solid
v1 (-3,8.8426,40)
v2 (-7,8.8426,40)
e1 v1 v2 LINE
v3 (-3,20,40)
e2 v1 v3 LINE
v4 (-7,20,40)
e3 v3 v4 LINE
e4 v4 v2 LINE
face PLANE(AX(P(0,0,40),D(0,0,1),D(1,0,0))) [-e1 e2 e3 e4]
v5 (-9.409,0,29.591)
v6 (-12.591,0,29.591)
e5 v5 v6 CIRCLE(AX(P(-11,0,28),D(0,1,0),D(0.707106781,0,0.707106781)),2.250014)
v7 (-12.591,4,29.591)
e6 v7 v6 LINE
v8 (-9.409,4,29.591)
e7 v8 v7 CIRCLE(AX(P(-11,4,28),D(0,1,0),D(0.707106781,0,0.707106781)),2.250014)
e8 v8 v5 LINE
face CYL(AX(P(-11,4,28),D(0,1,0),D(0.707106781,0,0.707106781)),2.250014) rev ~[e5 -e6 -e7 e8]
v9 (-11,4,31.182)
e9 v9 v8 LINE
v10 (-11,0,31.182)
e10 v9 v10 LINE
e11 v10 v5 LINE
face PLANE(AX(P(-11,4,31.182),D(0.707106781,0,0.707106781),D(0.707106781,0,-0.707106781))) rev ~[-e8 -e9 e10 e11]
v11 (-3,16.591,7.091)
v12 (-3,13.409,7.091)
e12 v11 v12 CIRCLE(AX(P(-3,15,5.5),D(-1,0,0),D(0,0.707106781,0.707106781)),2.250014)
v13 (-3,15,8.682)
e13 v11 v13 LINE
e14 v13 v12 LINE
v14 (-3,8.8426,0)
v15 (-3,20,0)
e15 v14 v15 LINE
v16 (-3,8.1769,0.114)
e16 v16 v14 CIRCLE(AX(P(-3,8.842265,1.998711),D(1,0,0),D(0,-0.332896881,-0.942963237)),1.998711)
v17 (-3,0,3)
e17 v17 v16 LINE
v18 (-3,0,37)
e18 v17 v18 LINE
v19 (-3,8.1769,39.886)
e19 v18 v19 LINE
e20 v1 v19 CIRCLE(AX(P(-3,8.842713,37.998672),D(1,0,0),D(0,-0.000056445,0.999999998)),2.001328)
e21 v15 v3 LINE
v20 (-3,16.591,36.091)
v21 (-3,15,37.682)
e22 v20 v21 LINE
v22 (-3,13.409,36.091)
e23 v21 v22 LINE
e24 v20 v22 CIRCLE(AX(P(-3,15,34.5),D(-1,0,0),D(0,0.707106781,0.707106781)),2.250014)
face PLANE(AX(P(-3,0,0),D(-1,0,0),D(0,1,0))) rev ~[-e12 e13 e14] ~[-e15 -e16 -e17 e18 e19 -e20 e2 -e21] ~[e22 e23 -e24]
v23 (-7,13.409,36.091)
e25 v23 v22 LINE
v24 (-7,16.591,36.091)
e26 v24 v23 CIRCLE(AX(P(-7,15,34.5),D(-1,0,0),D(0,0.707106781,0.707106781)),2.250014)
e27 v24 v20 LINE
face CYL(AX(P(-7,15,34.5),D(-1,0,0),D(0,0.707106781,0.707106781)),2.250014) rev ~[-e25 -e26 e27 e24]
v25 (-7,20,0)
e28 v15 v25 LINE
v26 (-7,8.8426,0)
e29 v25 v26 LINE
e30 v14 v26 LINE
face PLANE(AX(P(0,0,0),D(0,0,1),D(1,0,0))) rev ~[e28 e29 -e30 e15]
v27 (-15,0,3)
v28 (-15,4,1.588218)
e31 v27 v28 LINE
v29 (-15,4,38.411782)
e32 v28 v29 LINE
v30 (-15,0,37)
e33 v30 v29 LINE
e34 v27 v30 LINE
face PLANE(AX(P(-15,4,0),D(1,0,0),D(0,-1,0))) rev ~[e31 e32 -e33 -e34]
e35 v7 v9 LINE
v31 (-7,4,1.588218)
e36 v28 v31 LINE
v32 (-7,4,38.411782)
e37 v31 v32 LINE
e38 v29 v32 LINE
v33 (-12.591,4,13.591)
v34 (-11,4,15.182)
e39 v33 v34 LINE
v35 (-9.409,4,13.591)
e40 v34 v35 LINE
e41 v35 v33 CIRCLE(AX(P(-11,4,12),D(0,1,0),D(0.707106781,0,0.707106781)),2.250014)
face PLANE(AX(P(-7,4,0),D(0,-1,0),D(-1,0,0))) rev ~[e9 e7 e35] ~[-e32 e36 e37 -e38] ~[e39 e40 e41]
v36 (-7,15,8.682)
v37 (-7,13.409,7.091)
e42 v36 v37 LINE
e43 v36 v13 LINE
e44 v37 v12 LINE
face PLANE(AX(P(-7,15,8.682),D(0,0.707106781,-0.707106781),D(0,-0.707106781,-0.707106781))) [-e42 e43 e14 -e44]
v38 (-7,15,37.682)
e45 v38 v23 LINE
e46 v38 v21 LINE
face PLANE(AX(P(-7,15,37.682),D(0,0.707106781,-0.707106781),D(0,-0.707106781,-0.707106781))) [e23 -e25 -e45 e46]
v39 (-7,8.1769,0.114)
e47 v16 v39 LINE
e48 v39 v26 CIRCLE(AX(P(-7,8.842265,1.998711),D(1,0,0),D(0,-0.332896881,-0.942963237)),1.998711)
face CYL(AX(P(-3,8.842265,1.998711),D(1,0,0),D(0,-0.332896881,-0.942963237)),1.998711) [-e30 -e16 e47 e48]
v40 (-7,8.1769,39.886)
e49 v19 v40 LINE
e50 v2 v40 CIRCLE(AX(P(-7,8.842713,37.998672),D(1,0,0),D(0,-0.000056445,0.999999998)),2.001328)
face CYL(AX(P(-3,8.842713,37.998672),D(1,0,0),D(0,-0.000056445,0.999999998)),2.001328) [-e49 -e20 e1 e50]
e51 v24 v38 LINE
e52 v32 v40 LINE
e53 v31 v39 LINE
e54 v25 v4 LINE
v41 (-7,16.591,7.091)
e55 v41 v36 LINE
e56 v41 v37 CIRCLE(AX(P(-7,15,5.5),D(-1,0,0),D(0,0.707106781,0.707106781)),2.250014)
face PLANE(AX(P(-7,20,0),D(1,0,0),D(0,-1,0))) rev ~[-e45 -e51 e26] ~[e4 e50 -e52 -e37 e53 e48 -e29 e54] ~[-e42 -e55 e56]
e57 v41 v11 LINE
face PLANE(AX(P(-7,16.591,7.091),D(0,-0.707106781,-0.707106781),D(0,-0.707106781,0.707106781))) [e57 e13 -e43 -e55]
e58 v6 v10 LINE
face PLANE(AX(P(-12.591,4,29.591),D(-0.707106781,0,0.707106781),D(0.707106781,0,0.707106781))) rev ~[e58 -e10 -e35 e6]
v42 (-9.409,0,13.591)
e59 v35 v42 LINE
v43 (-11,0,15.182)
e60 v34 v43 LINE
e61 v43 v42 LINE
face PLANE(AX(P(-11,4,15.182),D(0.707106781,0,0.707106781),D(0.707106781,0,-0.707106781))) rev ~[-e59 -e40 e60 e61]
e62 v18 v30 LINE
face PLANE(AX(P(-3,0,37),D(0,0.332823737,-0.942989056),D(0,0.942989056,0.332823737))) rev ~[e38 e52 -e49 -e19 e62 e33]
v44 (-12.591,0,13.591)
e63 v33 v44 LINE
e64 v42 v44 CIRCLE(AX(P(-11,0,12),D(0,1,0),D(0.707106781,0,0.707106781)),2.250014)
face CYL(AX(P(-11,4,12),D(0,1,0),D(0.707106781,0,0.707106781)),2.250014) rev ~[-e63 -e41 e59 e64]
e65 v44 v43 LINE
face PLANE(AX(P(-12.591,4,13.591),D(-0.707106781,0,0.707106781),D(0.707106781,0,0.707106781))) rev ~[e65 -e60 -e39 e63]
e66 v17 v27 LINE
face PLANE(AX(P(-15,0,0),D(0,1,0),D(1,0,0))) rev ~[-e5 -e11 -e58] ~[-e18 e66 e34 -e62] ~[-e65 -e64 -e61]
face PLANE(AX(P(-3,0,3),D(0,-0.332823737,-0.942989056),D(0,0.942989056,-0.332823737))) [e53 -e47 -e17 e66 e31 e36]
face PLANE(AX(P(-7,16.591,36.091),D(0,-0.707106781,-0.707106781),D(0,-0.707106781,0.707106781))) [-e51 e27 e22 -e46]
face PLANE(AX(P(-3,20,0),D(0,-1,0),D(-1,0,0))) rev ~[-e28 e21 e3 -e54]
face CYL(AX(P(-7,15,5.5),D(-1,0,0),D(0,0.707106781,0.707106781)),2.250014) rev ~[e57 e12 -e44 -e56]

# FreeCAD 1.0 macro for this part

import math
import FreeCAD as App
import Part
import Sketcher

V = App.Vector
Q = App.Units.Quantity

doc = App.newDocument("Part")
body = doc.addObject("PartDesign::Body", "Body")

# Sketch on XY plane
sketch1 = doc.addObject("Sketcher::SketchObject", "Sketch")
body.addObject(sketch1)
sketch1.AttachmentSupport = (doc.XY_Plane, [""])
sketch1.MapMode = "FlatFace"
sketch1.addGeometry([
    Part.LineSegment(V(-15, 0, 0), V(-3, 0, 0)),  # 0
    Part.LineSegment(V(-3, 0, 0), V(-3, 20, 0)),  # 1
    Part.LineSegment(V(-3, 20, 0), V(-7, 20, 0)),  # 2
    Part.LineSegment(V(-7, 20, 0), V(-7, 4, 0)),  # 3
    Part.LineSegment(V(-7, 4, 0), V(-15, 4, 0)),  # 4
    Part.LineSegment(V(-15, 4, 0), V(-15, 0, 0)),  # 5
], False)
sketch1.addConstraint([
    Sketcher.Constraint("Coincident", 0, 2, 1, 1),
    Sketcher.Constraint("Coincident", 1, 2, 2, 1),
    Sketcher.Constraint("Coincident", 2, 2, 3, 1),
    Sketcher.Constraint("Coincident", 3, 2, 4, 1),
    Sketcher.Constraint("Coincident", 4, 2, 5, 1),
    Sketcher.Constraint("Coincident", 5, 2, 0, 1),
    Sketcher.Constraint("Horizontal", 0),
    Sketcher.Constraint("Vertical", 1),
    Sketcher.Constraint("Horizontal", 2),
    Sketcher.Constraint("Vertical", 3),
    Sketcher.Constraint("Horizontal", 4),
    Sketcher.Constraint("Vertical", 5),
    Sketcher.Constraint("PointOnObject", 0, 2, -1),
    Sketcher.Constraint("Equal", 2, 5),
    Sketcher.Constraint("DistanceX", 0, 1, 0, 2, 12.0),
    Sketcher.Constraint("DistanceX", 2, 2, 2, 1, 4.0),
    Sketcher.Constraint("DistanceY", 1, 1, 1, 2, 20.0),
    Sketcher.Constraint("DistanceX", 0, 2, -1, 1, 3.0),
])
pad1 = doc.addObject("PartDesign::Pad", "Pad")
body.addObject(pad1)
pad1.Profile = sketch1
pad1.Length = 40

# Sketch on XZ plane
sketch2 = doc.addObject("Sketcher::SketchObject", "Sketch001")
body.addObject(sketch2)
sketch2.AttachmentSupport = (doc.XZ_Plane, [""])
sketch2.MapMode = "FlatFace"
sketch2.AttachmentOffset = App.Placement(V(0, 0, -4), App.Rotation())
sketch2.addGeometry([
    Part.LineSegment(V(-11, 15.2, 0), V(-9.4, 13.6, 0)),  # 0
    Part.ArcOfCircle(Part.Circle(V(-11, 12, 0), V(0, 0, 1), 2.3), math.radians(135), math.radians(405)),  # 1
    Part.LineSegment(V(-12.6, 13.6, 0), V(-11, 15.2, 0)),  # 2
    Part.LineSegment(V(-11, 31.2, 0), V(-9.4, 29.6, 0)),  # 3
    Part.ArcOfCircle(Part.Circle(V(-11, 28, 0), V(0, 0, 1), 2.3), math.radians(135), math.radians(405)),  # 4
    Part.LineSegment(V(-12.6, 29.6, 0), V(-11, 31.2, 0)),  # 5
], False)
sketch2.addConstraint([
    Sketcher.Constraint("Tangent", 0, 2, 1, 2),
    Sketcher.Constraint("Tangent", 1, 1, 2, 1),
    Sketcher.Constraint("Coincident", 2, 2, 0, 1),
    Sketcher.Constraint("Tangent", 3, 2, 4, 2),
    Sketcher.Constraint("Tangent", 4, 1, 5, 1),
    Sketcher.Constraint("Coincident", 5, 2, 3, 1),
    Sketcher.Constraint("Equal", 1, 4),
    Sketcher.Constraint("Perpendicular", 0, 2),
    Sketcher.Constraint("Perpendicular", 2, 3),
    Sketcher.Constraint("Perpendicular", 3, 5),
    Sketcher.Constraint("Horizontal", 0, 2, 1, 1),
    Sketcher.Constraint("Vertical", 1, 3, 4, 3),
    Sketcher.Constraint("Radius", 1, 2.25),
    Sketcher.Constraint("DistanceY", -1, 1, 1, 3, 12.0),
    Sketcher.Constraint("DistanceX", 1, 3, -1, 1, 11.0),
    Sketcher.Constraint("DistanceY", -1, 1, 4, 3, 28.0),
])
pocket1 = doc.addObject("PartDesign::Pocket", "Pocket")
body.addObject(pocket1)
pocket1.Profile = sketch2
pocket1.Length = 4
pocket1.Reversed = True

# Sketch on YZ plane
sketch3 = doc.addObject("Sketcher::SketchObject", "Sketch002")
body.addObject(sketch3)
sketch3.AttachmentSupport = (doc.YZ_Plane, [""])
sketch3.MapMode = "FlatFace"
sketch3.AttachmentOffset = App.Placement(V(0, 0, -7), App.Rotation())
sketch3.addGeometry([
    Part.LineSegment(V(15, 8.7, 0), V(16.6, 7.1, 0)),
    Part.ArcOfCircle(Part.Circle(V(15, 5.5, 0), V(0, 0, 1), 2.3), math.radians(135), math.radians(405)),
    Part.LineSegment(V(13.4, 7.1, 0), V(15, 8.7, 0)),
], False)
sketch3.addConstraint([
    Sketcher.Constraint("Tangent", 0, 2, 1, 2),
    Sketcher.Constraint("Tangent", 1, 1, 2, 1),
    Sketcher.Constraint("Coincident", 2, 2, 0, 1),
    Sketcher.Constraint("Perpendicular", 0, 2),
    Sketcher.Constraint("Horizontal", 0, 2, 1, 1),
    Sketcher.Constraint("Radius", 1, 2.25),
    Sketcher.Constraint("DistanceX", -1, 1, 1, 3, 15.0),
    Sketcher.Constraint("DistanceY", -1, 1, 1, 3, 5.5),
])
pocket2 = doc.addObject("PartDesign::Pocket", "Pocket001")
body.addObject(pocket2)
pocket2.Profile = sketch3
pocket2.Length = 4
pocket2.Reversed = True

# Sketch on YZ plane
sketch4 = doc.addObject("Sketcher::SketchObject", "Sketch003")
body.addObject(sketch4)
sketch4.AttachmentSupport = (doc.YZ_Plane, [""])
sketch4.MapMode = "FlatFace"
sketch4.AttachmentOffset = App.Placement(V(0, 0, -7), App.Rotation())
sketch4.addGeometry([
    Part.LineSegment(V(15, 37.7, 0), V(16.6, 36.1, 0)),
    Part.ArcOfCircle(Part.Circle(V(15, 34.5, 0), V(0, 0, 1), 2.3), math.radians(135), math.radians(405)),
    Part.LineSegment(V(13.4, 36.1, 0), V(15, 37.7, 0)),
], False)
sketch4.addConstraint([
    Sketcher.Constraint("Tangent", 0, 2, 1, 2),
    Sketcher.Constraint("Tangent", 1, 1, 2, 1),
    Sketcher.Constraint("Coincident", 2, 2, 0, 1),
    Sketcher.Constraint("Perpendicular", 0, 2),
    Sketcher.Constraint("Horizontal", 0, 2, 1, 1),
    Sketcher.Constraint("Radius", 1, 2.25),
    Sketcher.Constraint("DistanceX", -1, 1, 1, 3, 15.0),
    Sketcher.Constraint("DistanceY", -1, 1, 1, 3, 34.5),
])
pocket3 = doc.addObject("PartDesign::Pocket", "Pocket002")
body.addObject(pocket3)
pocket3.Profile = sketch4
pocket3.Length = 4
pocket3.Reversed = True

# Sketch on YZ plane
sketch5 = doc.addObject("Sketcher::SketchObject", "Sketch004")
body.addObject(sketch5)
sketch5.AttachmentSupport = (doc.YZ_Plane, [""])
sketch5.MapMode = "FlatFace"
sketch5.AttachmentOffset = App.Placement(V(0, 0, -3), App.Rotation())
sketch5.addGeometry([
    Part.LineSegment(V(8.2, 0.1, 0), V(0, 3, 0)),  # 0
    Part.LineSegment(V(0, 3, 0), V(0, 0, 0)),  # 1
    Part.LineSegment(V(0, 0, 0), V(8.8, 0, 0)),  # 2
    Part.ArcOfCircle(Part.Circle(V(8.8, 2, 0), V(0, 0, 1), 2), math.radians(-109.44), math.radians(-89.99)),  # 3
    Part.LineSegment(V(8.8, 40, 0), V(0, 40, 0)),  # 4
    Part.LineSegment(V(0, 40, 0), V(0, 37, 0)),  # 5
    Part.LineSegment(V(0, 37, 0), V(8.2, 39.9, 0)),  # 6
    Part.ArcOfCircle(Part.Circle(V(8.8, 38, 0), V(0, 0, 1), 2), math.radians(90), math.radians(109.43)),  # 7
], False)
sketch5.addConstraint([
    Sketcher.Constraint("Coincident", 0, 2, 1, 1),
    Sketcher.Constraint("Coincident", 1, 2, 2, 1),
    Sketcher.Constraint("Tangent", 2, 2, 3, 2),
    Sketcher.Constraint("Tangent", 3, 1, 0, 1),
    Sketcher.Constraint("Coincident", 4, 2, 5, 1),
    Sketcher.Constraint("Coincident", 5, 2, 6, 1),
    Sketcher.Constraint("Tangent", 6, 2, 7, 2),
    Sketcher.Constraint("Tangent", 7, 1, 4, 1),
    Sketcher.Constraint("Vertical", 1),
    Sketcher.Constraint("Horizontal", 2),
    Sketcher.Constraint("Horizontal", 4),
    Sketcher.Constraint("Vertical", 5),
    Sketcher.Constraint("Coincident", 1, 2, -1, 1),
    Sketcher.Constraint("PointOnObject", 4, 2, -2),
    Sketcher.Constraint("Vertical", 7, 3, 2, 2),
    Sketcher.Constraint("Vertical", 3, 1, 6, 2),
    Sketcher.Constraint("Equal", 1, 5),
    Sketcher.Constraint("DistanceY", 1, 2, 1, 1, 3.0),
    Sketcher.Constraint("DistanceY", -1, 1, 4, 2, 40.0),
    Sketcher.Constraint("DistanceY", 3, 3, 7, 3, 36.0),
    Sketcher.Constraint("Angle", 0, Q("160.5597 deg")),
])
pocket4 = doc.addObject("PartDesign::Pocket", "Pocket003")
body.addObject(pocket4)
pocket4.Profile = sketch5
pocket4.Type = "ThroughAll"

doc.recompute()
